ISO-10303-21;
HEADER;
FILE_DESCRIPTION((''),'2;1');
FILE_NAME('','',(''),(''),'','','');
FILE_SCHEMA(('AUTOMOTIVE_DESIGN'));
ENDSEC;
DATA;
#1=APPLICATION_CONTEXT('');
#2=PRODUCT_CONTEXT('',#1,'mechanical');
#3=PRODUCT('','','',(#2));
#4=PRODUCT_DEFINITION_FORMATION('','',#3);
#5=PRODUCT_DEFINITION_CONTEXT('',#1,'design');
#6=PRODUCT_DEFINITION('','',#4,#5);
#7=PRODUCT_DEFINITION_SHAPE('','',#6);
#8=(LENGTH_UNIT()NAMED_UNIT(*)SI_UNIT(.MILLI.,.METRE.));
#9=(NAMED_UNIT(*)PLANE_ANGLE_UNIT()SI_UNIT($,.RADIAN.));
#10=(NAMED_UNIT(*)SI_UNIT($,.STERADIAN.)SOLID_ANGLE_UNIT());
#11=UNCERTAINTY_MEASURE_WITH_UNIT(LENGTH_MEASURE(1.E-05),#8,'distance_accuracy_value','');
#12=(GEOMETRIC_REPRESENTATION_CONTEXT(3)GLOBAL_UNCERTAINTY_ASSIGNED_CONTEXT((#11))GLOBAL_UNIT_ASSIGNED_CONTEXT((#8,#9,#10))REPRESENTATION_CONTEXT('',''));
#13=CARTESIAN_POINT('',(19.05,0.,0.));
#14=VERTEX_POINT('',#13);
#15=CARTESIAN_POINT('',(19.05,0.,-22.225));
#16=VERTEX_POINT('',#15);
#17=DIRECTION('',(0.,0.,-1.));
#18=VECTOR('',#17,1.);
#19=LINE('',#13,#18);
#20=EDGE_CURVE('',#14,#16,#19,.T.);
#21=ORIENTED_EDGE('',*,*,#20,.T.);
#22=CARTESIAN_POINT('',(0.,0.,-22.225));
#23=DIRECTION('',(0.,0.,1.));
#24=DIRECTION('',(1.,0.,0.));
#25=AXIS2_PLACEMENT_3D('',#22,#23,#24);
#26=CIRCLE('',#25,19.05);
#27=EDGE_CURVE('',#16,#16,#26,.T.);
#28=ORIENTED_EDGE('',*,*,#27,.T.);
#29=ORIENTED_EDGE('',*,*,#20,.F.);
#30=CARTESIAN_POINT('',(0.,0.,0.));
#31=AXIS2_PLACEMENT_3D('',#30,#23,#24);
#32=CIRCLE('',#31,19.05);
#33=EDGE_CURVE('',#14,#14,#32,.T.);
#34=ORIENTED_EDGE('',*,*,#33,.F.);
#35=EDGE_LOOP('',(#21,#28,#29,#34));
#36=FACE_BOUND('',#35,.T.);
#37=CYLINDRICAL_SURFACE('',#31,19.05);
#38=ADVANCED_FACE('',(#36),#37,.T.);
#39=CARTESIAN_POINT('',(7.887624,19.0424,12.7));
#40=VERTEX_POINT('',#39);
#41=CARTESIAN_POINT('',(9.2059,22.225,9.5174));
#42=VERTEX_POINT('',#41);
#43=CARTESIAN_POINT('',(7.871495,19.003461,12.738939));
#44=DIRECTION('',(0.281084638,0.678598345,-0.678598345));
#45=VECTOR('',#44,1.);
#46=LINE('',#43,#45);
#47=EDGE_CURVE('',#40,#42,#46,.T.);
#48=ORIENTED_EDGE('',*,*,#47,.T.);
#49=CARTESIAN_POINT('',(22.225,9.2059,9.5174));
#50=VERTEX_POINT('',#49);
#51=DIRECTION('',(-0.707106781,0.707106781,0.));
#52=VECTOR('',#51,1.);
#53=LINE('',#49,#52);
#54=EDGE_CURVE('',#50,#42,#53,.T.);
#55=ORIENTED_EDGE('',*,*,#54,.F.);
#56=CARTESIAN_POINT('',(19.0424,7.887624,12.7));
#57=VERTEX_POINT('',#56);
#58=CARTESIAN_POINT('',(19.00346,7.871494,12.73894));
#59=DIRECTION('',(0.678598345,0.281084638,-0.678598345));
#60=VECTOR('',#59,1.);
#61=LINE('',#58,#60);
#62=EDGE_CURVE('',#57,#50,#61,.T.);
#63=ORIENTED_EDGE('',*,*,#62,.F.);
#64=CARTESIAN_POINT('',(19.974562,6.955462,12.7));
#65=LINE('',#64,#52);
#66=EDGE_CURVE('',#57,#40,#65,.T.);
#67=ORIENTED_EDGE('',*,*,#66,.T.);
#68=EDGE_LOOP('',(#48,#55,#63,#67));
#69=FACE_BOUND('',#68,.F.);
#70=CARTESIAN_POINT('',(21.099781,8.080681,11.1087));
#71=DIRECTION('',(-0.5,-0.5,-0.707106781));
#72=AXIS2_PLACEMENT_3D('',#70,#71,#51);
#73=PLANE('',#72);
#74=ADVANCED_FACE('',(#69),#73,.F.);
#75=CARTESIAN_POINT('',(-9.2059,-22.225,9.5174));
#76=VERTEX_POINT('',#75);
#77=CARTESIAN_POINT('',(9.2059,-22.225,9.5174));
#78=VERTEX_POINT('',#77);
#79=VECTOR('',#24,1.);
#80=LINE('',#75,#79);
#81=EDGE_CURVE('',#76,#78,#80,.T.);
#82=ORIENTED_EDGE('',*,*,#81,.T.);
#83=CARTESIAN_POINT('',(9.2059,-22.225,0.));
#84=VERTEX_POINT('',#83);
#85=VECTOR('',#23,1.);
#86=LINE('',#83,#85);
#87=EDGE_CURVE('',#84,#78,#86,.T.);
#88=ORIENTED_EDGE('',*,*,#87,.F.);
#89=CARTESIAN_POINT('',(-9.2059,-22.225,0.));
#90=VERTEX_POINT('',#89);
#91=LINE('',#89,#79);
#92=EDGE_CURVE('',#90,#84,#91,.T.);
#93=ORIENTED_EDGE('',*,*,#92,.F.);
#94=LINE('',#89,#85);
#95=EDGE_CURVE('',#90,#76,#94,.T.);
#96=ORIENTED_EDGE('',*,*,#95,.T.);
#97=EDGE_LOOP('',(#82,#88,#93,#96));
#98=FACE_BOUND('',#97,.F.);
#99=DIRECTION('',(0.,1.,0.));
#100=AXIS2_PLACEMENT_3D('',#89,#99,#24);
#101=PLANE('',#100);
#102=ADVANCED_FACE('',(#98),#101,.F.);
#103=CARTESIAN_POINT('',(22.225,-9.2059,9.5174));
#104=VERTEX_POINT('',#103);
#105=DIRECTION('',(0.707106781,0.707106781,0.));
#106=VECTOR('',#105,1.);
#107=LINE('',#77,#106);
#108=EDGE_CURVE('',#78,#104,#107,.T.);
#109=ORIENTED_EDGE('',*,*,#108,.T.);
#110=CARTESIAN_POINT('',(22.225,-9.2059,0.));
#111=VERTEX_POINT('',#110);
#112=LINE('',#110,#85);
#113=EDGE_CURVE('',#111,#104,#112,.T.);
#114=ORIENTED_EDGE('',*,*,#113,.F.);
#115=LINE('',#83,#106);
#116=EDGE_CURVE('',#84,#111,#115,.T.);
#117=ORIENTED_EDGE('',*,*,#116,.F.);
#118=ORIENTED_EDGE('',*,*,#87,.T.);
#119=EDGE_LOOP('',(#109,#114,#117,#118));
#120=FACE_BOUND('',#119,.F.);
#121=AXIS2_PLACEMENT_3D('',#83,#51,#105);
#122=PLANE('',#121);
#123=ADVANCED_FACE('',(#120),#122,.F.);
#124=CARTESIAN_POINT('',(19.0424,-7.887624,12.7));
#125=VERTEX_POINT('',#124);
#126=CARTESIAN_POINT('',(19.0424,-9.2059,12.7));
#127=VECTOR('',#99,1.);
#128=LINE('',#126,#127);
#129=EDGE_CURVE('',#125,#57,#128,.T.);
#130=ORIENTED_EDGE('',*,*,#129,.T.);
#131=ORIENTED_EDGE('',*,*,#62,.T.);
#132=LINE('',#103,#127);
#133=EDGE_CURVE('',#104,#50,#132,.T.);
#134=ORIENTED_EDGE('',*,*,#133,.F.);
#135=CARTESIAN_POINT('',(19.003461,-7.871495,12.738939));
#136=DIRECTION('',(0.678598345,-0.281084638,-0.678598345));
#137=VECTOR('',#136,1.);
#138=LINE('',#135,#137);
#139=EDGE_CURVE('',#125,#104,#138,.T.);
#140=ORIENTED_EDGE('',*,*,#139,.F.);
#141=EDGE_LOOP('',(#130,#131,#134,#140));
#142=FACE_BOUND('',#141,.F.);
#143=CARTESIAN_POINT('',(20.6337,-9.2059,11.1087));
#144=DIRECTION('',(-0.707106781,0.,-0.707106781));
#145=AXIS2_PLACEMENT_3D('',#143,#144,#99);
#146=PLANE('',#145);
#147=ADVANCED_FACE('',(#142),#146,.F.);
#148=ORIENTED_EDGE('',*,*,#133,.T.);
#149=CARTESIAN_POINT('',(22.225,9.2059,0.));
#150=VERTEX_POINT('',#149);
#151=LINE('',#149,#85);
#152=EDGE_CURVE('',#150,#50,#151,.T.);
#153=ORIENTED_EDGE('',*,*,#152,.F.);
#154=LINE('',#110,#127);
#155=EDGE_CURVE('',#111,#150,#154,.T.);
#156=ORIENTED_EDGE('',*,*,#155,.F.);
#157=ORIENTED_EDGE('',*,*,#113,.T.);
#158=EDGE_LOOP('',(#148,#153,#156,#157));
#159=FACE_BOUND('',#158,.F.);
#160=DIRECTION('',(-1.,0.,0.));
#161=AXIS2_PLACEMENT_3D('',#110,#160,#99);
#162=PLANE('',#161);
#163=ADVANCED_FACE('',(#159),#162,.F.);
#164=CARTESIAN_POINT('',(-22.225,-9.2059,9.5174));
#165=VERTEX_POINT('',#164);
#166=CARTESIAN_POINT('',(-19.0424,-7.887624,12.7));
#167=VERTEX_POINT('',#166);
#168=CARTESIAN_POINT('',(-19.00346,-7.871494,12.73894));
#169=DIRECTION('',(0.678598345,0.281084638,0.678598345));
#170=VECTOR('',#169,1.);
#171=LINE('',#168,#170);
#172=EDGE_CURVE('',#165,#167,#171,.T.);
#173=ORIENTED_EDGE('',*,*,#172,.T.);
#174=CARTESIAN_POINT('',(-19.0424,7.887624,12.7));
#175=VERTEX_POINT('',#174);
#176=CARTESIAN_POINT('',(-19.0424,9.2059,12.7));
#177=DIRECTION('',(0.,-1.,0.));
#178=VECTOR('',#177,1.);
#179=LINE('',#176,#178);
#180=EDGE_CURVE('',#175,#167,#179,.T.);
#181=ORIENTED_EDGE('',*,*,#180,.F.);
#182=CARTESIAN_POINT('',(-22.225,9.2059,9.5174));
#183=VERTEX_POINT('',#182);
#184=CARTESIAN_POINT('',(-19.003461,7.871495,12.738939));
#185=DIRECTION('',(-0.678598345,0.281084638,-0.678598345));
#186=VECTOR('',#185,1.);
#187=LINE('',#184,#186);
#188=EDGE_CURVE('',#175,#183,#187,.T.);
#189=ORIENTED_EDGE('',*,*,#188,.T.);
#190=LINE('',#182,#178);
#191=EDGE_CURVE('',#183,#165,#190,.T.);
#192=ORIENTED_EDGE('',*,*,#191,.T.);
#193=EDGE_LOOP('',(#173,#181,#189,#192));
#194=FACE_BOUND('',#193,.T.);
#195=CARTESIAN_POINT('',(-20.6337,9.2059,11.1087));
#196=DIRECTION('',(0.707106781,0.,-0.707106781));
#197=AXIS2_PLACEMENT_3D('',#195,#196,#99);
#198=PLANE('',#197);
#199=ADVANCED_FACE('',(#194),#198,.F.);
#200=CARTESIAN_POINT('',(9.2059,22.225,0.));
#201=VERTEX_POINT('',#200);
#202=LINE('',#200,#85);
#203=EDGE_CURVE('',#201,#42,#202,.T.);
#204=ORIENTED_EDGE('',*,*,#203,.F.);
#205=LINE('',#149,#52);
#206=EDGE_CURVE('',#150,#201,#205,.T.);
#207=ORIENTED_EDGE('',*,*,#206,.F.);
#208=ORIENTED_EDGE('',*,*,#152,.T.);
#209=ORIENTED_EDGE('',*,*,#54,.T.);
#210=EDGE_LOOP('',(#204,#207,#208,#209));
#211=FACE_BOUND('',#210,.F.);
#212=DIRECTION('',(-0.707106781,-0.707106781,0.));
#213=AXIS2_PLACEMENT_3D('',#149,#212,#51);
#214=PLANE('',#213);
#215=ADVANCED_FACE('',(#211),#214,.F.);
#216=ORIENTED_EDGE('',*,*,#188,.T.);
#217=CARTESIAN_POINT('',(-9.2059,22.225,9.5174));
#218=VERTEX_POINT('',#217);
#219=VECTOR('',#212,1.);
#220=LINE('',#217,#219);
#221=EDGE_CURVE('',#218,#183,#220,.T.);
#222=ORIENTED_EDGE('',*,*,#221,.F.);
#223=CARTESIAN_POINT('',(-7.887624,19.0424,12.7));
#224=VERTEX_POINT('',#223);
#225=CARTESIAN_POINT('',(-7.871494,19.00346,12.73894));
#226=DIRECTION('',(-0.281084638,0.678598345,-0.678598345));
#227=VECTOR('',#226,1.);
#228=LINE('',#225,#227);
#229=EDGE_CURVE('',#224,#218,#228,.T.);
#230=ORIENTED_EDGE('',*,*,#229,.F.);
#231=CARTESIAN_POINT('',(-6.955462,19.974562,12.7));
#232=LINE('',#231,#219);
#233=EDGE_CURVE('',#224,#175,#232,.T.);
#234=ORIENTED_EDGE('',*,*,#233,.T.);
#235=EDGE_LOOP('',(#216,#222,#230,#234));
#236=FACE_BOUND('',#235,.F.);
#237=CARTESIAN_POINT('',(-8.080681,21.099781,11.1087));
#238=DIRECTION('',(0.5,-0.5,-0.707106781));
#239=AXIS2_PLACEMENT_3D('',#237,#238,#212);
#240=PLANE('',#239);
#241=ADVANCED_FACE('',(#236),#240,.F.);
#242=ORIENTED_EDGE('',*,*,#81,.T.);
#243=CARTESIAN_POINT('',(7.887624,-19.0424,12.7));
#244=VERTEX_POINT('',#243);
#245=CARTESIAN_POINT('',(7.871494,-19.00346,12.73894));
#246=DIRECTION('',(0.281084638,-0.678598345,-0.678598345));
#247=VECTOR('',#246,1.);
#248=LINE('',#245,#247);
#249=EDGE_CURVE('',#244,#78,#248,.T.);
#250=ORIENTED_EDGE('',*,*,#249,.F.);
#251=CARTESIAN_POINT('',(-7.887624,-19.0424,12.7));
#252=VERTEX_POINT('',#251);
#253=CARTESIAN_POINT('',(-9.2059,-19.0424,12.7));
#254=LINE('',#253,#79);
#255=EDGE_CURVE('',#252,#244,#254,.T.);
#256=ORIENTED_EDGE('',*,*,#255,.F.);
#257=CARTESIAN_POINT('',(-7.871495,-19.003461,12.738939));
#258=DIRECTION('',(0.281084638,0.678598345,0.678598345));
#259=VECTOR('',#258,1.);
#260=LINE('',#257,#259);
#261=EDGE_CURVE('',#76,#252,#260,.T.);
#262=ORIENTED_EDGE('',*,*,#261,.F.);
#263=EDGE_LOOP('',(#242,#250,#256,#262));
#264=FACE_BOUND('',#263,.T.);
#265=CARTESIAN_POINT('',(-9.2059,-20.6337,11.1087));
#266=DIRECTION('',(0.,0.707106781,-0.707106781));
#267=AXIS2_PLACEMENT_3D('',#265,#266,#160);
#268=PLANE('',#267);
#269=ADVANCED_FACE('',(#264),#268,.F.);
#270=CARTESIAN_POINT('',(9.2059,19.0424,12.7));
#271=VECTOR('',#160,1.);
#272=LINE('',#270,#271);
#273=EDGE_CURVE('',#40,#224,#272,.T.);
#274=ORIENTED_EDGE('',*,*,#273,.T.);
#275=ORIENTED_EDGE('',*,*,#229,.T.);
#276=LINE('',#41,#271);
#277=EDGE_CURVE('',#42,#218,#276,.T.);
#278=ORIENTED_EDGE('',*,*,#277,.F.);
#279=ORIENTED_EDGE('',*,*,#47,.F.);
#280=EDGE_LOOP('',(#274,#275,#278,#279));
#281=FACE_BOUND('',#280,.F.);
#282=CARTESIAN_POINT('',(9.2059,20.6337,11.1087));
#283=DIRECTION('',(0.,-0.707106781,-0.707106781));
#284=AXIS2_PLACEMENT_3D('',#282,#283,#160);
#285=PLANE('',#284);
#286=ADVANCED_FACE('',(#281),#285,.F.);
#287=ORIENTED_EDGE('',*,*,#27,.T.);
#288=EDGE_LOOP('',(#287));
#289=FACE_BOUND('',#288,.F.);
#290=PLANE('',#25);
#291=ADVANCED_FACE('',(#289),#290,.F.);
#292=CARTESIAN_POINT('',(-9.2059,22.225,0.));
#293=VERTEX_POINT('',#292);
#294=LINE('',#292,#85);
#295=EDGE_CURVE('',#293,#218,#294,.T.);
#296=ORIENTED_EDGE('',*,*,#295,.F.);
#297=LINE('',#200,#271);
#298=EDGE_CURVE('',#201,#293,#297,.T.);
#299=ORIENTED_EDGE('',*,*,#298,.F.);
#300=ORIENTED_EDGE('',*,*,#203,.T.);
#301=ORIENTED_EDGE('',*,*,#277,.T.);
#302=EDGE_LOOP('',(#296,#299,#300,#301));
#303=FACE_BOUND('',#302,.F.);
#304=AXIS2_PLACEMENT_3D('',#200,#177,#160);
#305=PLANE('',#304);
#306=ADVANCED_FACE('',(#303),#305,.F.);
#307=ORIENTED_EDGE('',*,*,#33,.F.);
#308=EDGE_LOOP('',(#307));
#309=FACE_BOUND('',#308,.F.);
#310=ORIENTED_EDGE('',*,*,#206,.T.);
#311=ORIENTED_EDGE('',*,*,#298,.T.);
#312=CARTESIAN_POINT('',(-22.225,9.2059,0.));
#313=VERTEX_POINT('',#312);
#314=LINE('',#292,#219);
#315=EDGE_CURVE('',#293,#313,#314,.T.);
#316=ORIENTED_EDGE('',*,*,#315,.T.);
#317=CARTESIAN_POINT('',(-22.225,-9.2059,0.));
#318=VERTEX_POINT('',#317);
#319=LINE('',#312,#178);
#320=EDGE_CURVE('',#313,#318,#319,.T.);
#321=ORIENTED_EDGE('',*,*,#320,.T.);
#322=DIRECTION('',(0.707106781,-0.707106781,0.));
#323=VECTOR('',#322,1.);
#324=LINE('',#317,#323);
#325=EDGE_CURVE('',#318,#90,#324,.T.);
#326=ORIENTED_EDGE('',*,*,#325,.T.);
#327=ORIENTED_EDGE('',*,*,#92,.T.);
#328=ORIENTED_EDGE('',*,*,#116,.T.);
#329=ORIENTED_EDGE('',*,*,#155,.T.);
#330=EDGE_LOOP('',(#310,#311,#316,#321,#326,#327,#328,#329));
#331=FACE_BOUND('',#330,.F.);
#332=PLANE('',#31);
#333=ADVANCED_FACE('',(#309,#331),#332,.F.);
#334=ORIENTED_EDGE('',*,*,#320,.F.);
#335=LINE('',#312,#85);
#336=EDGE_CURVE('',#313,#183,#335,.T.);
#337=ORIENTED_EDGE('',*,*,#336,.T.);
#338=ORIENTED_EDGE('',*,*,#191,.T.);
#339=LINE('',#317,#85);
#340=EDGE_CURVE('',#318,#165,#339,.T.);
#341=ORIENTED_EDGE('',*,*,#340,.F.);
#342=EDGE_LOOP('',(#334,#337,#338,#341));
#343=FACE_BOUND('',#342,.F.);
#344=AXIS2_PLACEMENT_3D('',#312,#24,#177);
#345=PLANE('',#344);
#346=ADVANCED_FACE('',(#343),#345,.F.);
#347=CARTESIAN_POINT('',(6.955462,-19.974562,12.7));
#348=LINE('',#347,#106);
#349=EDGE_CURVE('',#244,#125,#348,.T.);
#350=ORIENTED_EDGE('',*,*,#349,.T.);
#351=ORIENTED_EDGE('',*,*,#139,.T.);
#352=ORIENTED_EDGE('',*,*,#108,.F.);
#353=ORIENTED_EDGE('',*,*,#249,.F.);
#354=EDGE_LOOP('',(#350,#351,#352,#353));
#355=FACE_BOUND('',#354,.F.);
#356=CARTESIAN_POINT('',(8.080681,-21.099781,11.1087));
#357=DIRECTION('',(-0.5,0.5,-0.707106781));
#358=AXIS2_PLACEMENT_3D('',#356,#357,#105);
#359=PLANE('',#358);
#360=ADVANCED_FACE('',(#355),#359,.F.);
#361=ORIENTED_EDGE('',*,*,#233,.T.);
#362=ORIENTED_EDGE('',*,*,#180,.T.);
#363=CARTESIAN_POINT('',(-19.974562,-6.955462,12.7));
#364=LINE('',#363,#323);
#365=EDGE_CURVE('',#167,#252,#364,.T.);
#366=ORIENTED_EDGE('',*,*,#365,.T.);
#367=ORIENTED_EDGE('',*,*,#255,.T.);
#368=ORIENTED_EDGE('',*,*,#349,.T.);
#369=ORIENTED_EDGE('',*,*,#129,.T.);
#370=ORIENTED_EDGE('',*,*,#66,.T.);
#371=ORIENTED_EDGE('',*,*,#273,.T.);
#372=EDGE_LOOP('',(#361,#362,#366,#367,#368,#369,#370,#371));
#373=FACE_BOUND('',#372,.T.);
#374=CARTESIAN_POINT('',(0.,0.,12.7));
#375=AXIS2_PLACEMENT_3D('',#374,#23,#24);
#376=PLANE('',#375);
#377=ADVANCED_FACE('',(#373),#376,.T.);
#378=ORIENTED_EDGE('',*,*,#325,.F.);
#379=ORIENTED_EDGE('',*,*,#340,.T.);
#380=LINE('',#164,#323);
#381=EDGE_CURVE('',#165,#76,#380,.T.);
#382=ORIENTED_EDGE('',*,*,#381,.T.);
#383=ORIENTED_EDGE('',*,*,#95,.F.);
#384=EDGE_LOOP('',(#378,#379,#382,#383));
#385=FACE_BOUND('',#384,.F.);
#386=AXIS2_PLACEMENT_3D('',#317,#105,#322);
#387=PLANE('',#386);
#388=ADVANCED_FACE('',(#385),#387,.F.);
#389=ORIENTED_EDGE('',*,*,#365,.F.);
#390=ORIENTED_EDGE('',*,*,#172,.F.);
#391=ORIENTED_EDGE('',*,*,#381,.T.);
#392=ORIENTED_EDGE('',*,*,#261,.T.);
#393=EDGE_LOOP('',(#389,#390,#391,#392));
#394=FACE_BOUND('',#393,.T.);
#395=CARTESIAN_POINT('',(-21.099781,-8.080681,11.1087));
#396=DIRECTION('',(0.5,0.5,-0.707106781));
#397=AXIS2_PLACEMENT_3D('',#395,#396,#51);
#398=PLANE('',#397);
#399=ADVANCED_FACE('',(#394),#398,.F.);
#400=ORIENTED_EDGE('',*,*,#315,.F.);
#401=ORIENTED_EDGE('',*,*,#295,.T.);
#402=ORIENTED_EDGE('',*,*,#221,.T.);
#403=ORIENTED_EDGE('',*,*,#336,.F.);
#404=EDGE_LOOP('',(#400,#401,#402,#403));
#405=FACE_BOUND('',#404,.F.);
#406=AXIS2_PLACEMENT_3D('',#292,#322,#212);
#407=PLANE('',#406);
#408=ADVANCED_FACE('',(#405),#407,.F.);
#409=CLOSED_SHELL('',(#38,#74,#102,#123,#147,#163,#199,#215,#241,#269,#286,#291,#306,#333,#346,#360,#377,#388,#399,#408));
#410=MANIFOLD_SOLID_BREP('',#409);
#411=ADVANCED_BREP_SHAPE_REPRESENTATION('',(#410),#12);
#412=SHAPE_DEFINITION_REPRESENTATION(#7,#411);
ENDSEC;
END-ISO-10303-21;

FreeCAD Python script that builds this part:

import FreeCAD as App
import Part
import Sketcher
from FreeCAD import Vector
Q = App.Units.Quantity


def edges_at(feature, points):
    """Names of the edges that pass closest to the given points."""
    edges = feature.Shape.Edges
    near = lambda p: min(range(len(edges)), key=lambda i: edges[i].distToShape(Part.Vertex(*p))[0])
    return sorted({f"Edge{near(p) + 1}" for p in points})

doc = App.newDocument("Part")
params = doc.addObject("Spreadsheet::Sheet", "Params")
for row, (alias, value) in enumerate([
    ("sketch1_diameter", "1.5 in"),
    ("pad1_length", "0.875 in"),
    ("pad2_length", "0.5 in"),
    ("chamfer_size", "0.1252992 in"),
], start=1):
    params.set(f"A{row}", alias)
    params.set(f"B{row}", "=" + value)
    params.setAlias(f"B{row}", alias)

body = doc.addObject("PartDesign::Body", "Body")

# Sketch on XY plane
sketch1 = body.newObject("Sketcher::SketchObject", "Sketch")
sketch1.AttachmentSupport = (doc.getObject("XY_Plane"), [""])
sketch1.MapMode = "FlatFace"
sketch1.addGeometry(Part.Circle(Vector(0, 0, 0), Vector(0, 0, 1), 19), False)
sketch1.addConstraint(Sketcher.Constraint("Coincident", 0, 3, -1, 1))
sketch1.addConstraint(Sketcher.Constraint("Diameter", 0, Q("1.5 in")))
sketch1.setExpression("Constraints[1]", "Params.sketch1_diameter")
pad1 = body.newObject("PartDesign::Pad", "Pad")
pad1.Profile = sketch1
pad1.setExpression("Length", "Params.pad1_length")
pad1.Reversed = True

# Sketch on XY plane
sketch2 = body.newObject("Sketcher::SketchObject", "Sketch001")
sketch2.AttachmentSupport = (doc.getObject("XY_Plane"), [""])
sketch2.MapMode = "FlatFace"
sketch2.addGeometry(Part.LineSegment(Vector(-22, 9, 0), Vector(-22, -9, 0)), False)
sketch2.addGeometry(Part.LineSegment(Vector(-22, -9, 0), Vector(-9, -22, 0)), False)
sketch2.addGeometry(Part.LineSegment(Vector(-9, -22, 0), Vector(9, -22, 0)), False)
sketch2.addGeometry(Part.LineSegment(Vector(9, -22, 0), Vector(22, -9, 0)), False)
sketch2.addGeometry(Part.LineSegment(Vector(22, -9, 0), Vector(22, 9, 0)), False)
sketch2.addGeometry(Part.LineSegment(Vector(22, 9, 0), Vector(9, 22, 0)), False)
sketch2.addGeometry(Part.LineSegment(Vector(9, 22, 0), Vector(-9, 22, 0)), False)
sketch2.addGeometry(Part.LineSegment(Vector(-9, 22, 0), Vector(-22, 9, 0)), False)
sketch2.addConstraint(Sketcher.Constraint("Coincident", 0, 2, 1, 1))
sketch2.addConstraint(Sketcher.Constraint("Coincident", 1, 2, 2, 1))
sketch2.addConstraint(Sketcher.Constraint("Coincident", 2, 2, 3, 1))
sketch2.addConstraint(Sketcher.Constraint("Coincident", 3, 2, 4, 1))
sketch2.addConstraint(Sketcher.Constraint("Coincident", 4, 2, 5, 1))
sketch2.addConstraint(Sketcher.Constraint("Coincident", 5, 2, 6, 1))
sketch2.addConstraint(Sketcher.Constraint("Coincident", 6, 2, 7, 1))
sketch2.addConstraint(Sketcher.Constraint("Coincident", 7, 2, 0, 1))
sketch2.addConstraint(Sketcher.Constraint("Vertical", 0))
sketch2.addConstraint(Sketcher.Constraint("Horizontal", 2))
sketch2.addConstraint(Sketcher.Constraint("Vertical", 4))
sketch2.addConstraint(Sketcher.Constraint("Horizontal", 6))
sketch2.addConstraint(Sketcher.Constraint("Symmetric", 0, 2, 4, 2, -1, 1))
sketch2.addConstraint(Sketcher.Constraint("Symmetric", 1, 2, 5, 2, -1, 1))
sketch2.addConstraint(Sketcher.Constraint("Perpendicular", 1, 3))
sketch2.addConstraint(Sketcher.Constraint("Perpendicular", 5, 7))
sketch2.addConstraint(Sketcher.Constraint("Horizontal", 0, 2, 3, 2))
sketch2.addConstraint(Sketcher.Constraint("Horizontal", 4, 2, 7, 2))
sketch2.addConstraint(Sketcher.Constraint("Vertical", 2, 2, 5, 2))
sketch2.addConstraint(Sketcher.Constraint("Equal", 6, 0))
sketch2.addConstraint(Sketcher.Constraint("DistanceX", 0, 2, 3, 2, Q("1.75 in")))
sketch2.addConstraint(Sketcher.Constraint("DistanceX", 2, 1, 2, 2, Q("18.4118 mm")))
pad2 = body.newObject("PartDesign::Pad", "Pad001")
pad2.Profile = sketch2
pad2.setExpression("Length", "Params.pad2_length")
doc.recompute()

chamfer = body.newObject("PartDesign::Chamfer", "Chamfer")
chamfer.Base = (pad2, edges_at(pad2, [
    (15.715, -15.715, 12.7),
    (22.225, 0, 12.7),
    (15.715, 15.715, 12.7),
    (0, 22.225, 12.7),
    (-15.715, 15.715, 12.7),
    (-22.225, 0, 12.7),
    (-15.715, -15.715, 12.7),
    (0, -22.225, 12.7),
]))
chamfer.setExpression("Size", "Params.chamfer_size")

doc.recompute()
